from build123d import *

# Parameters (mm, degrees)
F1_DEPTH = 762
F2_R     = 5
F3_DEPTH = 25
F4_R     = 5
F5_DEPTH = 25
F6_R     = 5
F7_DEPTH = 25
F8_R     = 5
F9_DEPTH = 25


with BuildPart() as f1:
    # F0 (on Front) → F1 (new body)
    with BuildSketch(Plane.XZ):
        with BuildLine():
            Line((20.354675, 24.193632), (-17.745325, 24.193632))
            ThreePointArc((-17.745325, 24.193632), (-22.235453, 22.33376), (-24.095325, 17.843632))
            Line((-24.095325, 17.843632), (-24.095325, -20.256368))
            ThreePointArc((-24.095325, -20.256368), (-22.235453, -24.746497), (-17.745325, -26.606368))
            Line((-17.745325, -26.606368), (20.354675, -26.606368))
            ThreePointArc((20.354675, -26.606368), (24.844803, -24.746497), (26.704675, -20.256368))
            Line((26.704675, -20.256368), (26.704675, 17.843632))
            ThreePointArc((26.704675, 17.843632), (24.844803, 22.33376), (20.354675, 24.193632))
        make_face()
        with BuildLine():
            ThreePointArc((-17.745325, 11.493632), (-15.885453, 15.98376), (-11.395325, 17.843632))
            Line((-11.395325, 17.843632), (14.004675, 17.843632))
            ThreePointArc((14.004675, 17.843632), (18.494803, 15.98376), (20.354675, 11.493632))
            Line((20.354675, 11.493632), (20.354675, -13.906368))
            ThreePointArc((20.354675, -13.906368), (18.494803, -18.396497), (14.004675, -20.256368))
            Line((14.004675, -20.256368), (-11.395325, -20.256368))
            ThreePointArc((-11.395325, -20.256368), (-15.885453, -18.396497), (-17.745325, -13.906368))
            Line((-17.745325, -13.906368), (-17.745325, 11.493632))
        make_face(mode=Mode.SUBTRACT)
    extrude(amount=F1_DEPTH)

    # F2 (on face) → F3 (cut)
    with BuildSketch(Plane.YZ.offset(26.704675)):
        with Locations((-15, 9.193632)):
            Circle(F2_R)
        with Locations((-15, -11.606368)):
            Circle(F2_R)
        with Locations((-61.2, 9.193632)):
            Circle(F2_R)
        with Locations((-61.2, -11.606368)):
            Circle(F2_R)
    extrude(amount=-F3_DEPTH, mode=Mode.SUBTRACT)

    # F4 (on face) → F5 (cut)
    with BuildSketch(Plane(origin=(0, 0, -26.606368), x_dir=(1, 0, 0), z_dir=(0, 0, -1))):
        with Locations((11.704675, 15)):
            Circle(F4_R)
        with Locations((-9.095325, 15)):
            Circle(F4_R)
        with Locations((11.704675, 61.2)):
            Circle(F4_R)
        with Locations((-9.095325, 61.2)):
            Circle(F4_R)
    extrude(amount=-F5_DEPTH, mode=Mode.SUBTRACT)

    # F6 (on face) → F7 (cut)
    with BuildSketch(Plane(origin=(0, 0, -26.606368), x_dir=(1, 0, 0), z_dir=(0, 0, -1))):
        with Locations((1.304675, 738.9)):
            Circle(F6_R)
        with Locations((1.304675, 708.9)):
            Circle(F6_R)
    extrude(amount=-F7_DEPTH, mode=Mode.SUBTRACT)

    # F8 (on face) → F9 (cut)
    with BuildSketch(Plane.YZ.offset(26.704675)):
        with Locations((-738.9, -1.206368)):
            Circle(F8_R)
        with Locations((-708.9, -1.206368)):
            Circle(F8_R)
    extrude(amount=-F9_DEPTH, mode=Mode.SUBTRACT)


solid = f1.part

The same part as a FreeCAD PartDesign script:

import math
import FreeCAD as App
import Part
import Sketcher
Q = App.Units.Quantity

doc = App.newDocument("Part")
params = doc.addObject("Spreadsheet::Sheet", "Params")
for row, (alias, value) in enumerate([
    ("sketch1_width", "1 in"),
    ("sketch1_radius", "0.25 in"),
    ("pad1_length", "30 in"),
    ("pocket1_length", "25 mm"),
    ("pocket2_length", "25 mm"),
    ("pocket3_length", "25 mm"),
    ("pocket4_length", "25 mm"),
], start=1):
    params.set(f"A{row}", alias)
    params.set(f"B{row}", "=" + value)
    params.setAlias(f"B{row}", alias)

body = doc.addObject("PartDesign::Body", "Body")

# Sketch on XZ plane
sketch1 = body.newObject("Sketcher::SketchObject", "Sketch")
sketch1.AttachmentSupport = (doc.getObject("XZ_Plane"), [""])
sketch1.MapMode = "FlatFace"
sketch1.addGeometry([
    Part.LineSegment(App.Vector(20, 24, 0), App.Vector(-18, 24, 0)),  # 0
    Part.ArcOfCircle(Part.Circle(App.Vector(-18, 18, 0), App.Vector(0, 0, 1), 6), math.radians(90), math.radians(180)),  # 1
    Part.LineSegment(App.Vector(-24, 18, 0), App.Vector(-24, -20, 0)),  # 2
    Part.ArcOfCircle(Part.Circle(App.Vector(-18, -20, 0), App.Vector(0, 0, 1), 6), math.radians(180), math.radians(270)),  # 3
    Part.LineSegment(App.Vector(-18, -27, 0), App.Vector(20, -27, 0)),  # 4
    Part.ArcOfCircle(Part.Circle(App.Vector(20, -20, 0), App.Vector(0, 0, 1), 6), math.radians(-90), math.radians(0)),  # 5
    Part.LineSegment(App.Vector(27, -20, 0), App.Vector(27, 18, 0)),  # 6
    Part.ArcOfCircle(Part.Circle(App.Vector(20, 18, 0), App.Vector(0, 0, 1), 6), math.radians(0), math.radians(90)),  # 7
    Part.LineSegment(App.Vector(-18, -14, 0), App.Vector(-18, 11, 0)),  # 8
    Part.ArcOfCircle(Part.Circle(App.Vector(-11, 11, 0), App.Vector(0, 0, 1), 6), math.radians(90), math.radians(180)),  # 9
    Part.LineSegment(App.Vector(-11, 18, 0), App.Vector(14, 18, 0)),  # 10
    Part.ArcOfCircle(Part.Circle(App.Vector(14, 11, 0), App.Vector(0, 0, 1), 6), math.radians(0), math.radians(90)),  # 11
    Part.LineSegment(App.Vector(20, 11, 0), App.Vector(20, -14, 0)),  # 12
    Part.ArcOfCircle(Part.Circle(App.Vector(14, -14, 0), App.Vector(0, 0, 1), 6), math.radians(-90), math.radians(0)),  # 13
    Part.LineSegment(App.Vector(14, -20, 0), App.Vector(-11, -20, 0)),  # 14
    Part.ArcOfCircle(Part.Circle(App.Vector(-11, -14, 0), App.Vector(0, 0, 1), 6), math.radians(180), math.radians(270)),  # 15
], False)
sketch1.addConstraint([
    Sketcher.Constraint("Tangent", 0, 2, 1, 1),
    Sketcher.Constraint("Tangent", 1, 2, 2, 1),
    Sketcher.Constraint("Tangent", 2, 2, 3, 1),
    Sketcher.Constraint("Tangent", 3, 2, 4, 1),
    Sketcher.Constraint("Tangent", 4, 2, 5, 1),
    Sketcher.Constraint("Tangent", 5, 2, 6, 1),
    Sketcher.Constraint("Tangent", 6, 2, 7, 1),
    Sketcher.Constraint("Tangent", 7, 2, 0, 1),
    Sketcher.Constraint("Tangent", 8, 2, 9, 2),
    Sketcher.Constraint("Tangent", 9, 1, 10, 1),
    Sketcher.Constraint("Tangent", 10, 2, 11, 2),
    Sketcher.Constraint("Tangent", 11, 1, 12, 1),
    Sketcher.Constraint("Tangent", 12, 2, 13, 2),
    Sketcher.Constraint("Tangent", 13, 1, 14, 1),
    Sketcher.Constraint("Tangent", 14, 2, 15, 2),
    Sketcher.Constraint("Tangent", 15, 1, 8, 1),
    Sketcher.Constraint("Horizontal", 0),
    Sketcher.Constraint("Vertical", 2),
    Sketcher.Constraint("Horizontal", 4),
    Sketcher.Constraint("Vertical", 6),
    Sketcher.Constraint("Vertical", 8),
    Sketcher.Constraint("Horizontal", 10),
    Sketcher.Constraint("Vertical", 12),
    Sketcher.Constraint("Horizontal", 14),
    Sketcher.Constraint("Equal", 1, 3),
    Sketcher.Constraint("Equal", 3, 5),
    Sketcher.Constraint("Equal", 5, 7),
    Sketcher.Constraint("Equal", 7, 9),
    Sketcher.Constraint("Equal", 9, 11),
    Sketcher.Constraint("Equal", 11, 13),
    Sketcher.Constraint("Equal", 13, 15),
    Sketcher.Constraint("Horizontal", 6, 2, 9, 1),
    Sketcher.Constraint("Horizontal", 5, 2, 13, 1),
    Sketcher.Constraint("Vertical", 3, 2, 8, 2),
    Sketcher.Constraint("Vertical", 7, 2, 11, 1),
    Sketcher.Constraint("Equal", 4, 2),
    Sketcher.Constraint("DistanceX", 10, 1, 10, 2, Q("1 in")),
    Sketcher.Constraint("Radius", 1, Q("0.25 in")),
    Sketcher.Constraint("DistanceY", -1, 1, 1, 3, 17.843632),
    Sketcher.Constraint("DistanceX", 1, 3, -1, 1, 17.745325),
])
sketch1.setExpression("Constraints[36]", "Params.sketch1_width")
sketch1.setExpression("Constraints[37]", "Params.sketch1_radius")
pad1 = body.newObject("PartDesign::Pad", "Pad")
pad1.Profile = sketch1
pad1.setExpression("Length", "Params.pad1_length")

# Sketch on YZ plane
sketch2 = body.newObject("Sketcher::SketchObject", "Sketch001")
sketch2.AttachmentSupport = (doc.getObject("YZ_Plane"), [""])
sketch2.MapMode = "FlatFace"
sketch2.AttachmentOffset = App.Placement(App.Vector(0, 0, 26.704675), App.Rotation())
sketch2.addGeometry([
    Part.Circle(App.Vector(-15, 9, 0), App.Vector(0, 0, 1), 5),
    Part.Circle(App.Vector(-15, -12, 0), App.Vector(0, 0, 1), 5),
    Part.Circle(App.Vector(-61, 9, 0), App.Vector(0, 0, 1), 5),
    Part.Circle(App.Vector(-61, -12, 0), App.Vector(0, 0, 1), 5),
], False)
sketch2.addConstraint([
    Sketcher.Constraint("Equal", 0, 1),
    Sketcher.Constraint("Equal", 1, 2),
    Sketcher.Constraint("Equal", 2, 3),
    Sketcher.Constraint("Horizontal", 0, 3, 2, 3),
    Sketcher.Constraint("Horizontal", 1, 3, 3, 3),
    Sketcher.Constraint("Vertical", 0, 3, 1, 3),
    Sketcher.Constraint("Vertical", 2, 3, 3, 3),
    Sketcher.Constraint("Diameter", 0, 10.0),
    Sketcher.Constraint("DistanceX", 0, 3, -1, 1, 15.0),
    Sketcher.Constraint("DistanceX", 2, 3, -1, 1, 61.2),
    Sketcher.Constraint("DistanceY", 1, 3, 0, 3, 20.8),
    Sketcher.Constraint("DistanceY", -1, 1, 0, 3, 9.193632),
])
pocket1 = body.newObject("PartDesign::Pocket", "Pocket")
pocket1.Profile = sketch2
pocket1.setExpression("Length", "Params.pocket1_length")

# Sketch on XY plane
sketch3 = body.newObject("Sketcher::SketchObject", "Sketch002")
sketch3.AttachmentSupport = (doc.getObject("XY_Plane"), [""])
sketch3.MapMode = "FlatFace"
sketch3.AttachmentOffset = App.Placement(App.Vector(0, 0, -26.606368), App.Rotation())
sketch3.addGeometry([
    Part.Circle(App.Vector(12, -15, 0), App.Vector(0, 0, 1), 5),
    Part.Circle(App.Vector(-9, -15, 0), App.Vector(0, 0, 1), 5),
    Part.Circle(App.Vector(12, -61, 0), App.Vector(0, 0, 1), 5),
    Part.Circle(App.Vector(-9, -61, 0), App.Vector(0, 0, 1), 5),
], False)
sketch3.addConstraint([
    Sketcher.Constraint("Equal", 0, 1),
    Sketcher.Constraint("Equal", 1, 2),
    Sketcher.Constraint("Equal", 2, 3),
    Sketcher.Constraint("Horizontal", 0, 3, 1, 3),
    Sketcher.Constraint("Horizontal", 2, 3, 3, 3),
    Sketcher.Constraint("Vertical", 0, 3, 2, 3),
    Sketcher.Constraint("Vertical", 1, 3, 3, 3),
    Sketcher.Constraint("Diameter", 0, 10.0),
    Sketcher.Constraint("DistanceY", 0, 3, -1, 1, 15.0),
    Sketcher.Constraint("DistanceY", 2, 3, -1, 1, 61.2),
    Sketcher.Constraint("DistanceX", 1, 3, 0, 3, 20.8),
    Sketcher.Constraint("DistanceX", -1, 1, 0, 3, 11.704675),
])
pocket2 = body.newObject("PartDesign::Pocket", "Pocket001")
pocket2.Profile = sketch3
pocket2.setExpression("Length", "Params.pocket2_length")
pocket2.Reversed = True

# Sketch on XY plane
sketch4 = body.newObject("Sketcher::SketchObject", "Sketch003")
sketch4.AttachmentSupport = (doc.getObject("XY_Plane"), [""])
sketch4.MapMode = "FlatFace"
sketch4.AttachmentOffset = App.Placement(App.Vector(0, 0, -26.606368), App.Rotation())
sketch4.addGeometry([
    Part.Circle(App.Vector(1, -739, 0), App.Vector(0, 0, 1), 5),
    Part.Circle(App.Vector(1, -709, 0), App.Vector(0, 0, 1), 5),
], False)
sketch4.addConstraint([
    Sketcher.Constraint("Equal", 0, 1),
    Sketcher.Constraint("Vertical", 0, 3, 1, 3),
    Sketcher.Constraint("Diameter", 0, 10.0),
    Sketcher.Constraint("DistanceY", 0, 3, -1, 1, 738.9),
    Sketcher.Constraint("DistanceY", 1, 3, -1, 1, 708.9),
    Sketcher.Constraint("DistanceX", -1, 1, 0, 3, 1.304675),
])
pocket3 = body.newObject("PartDesign::Pocket", "Pocket002")
pocket3.Profile = sketch4
pocket3.setExpression("Length", "Params.pocket3_length")
pocket3.Reversed = True

# Sketch on YZ plane
sketch5 = body.newObject("Sketcher::SketchObject", "Sketch004")
sketch5.AttachmentSupport = (doc.getObject("YZ_Plane"), [""])
sketch5.MapMode = "FlatFace"
sketch5.AttachmentOffset = App.Placement(App.Vector(0, 0, 26.704675), App.Rotation())
sketch5.addGeometry([
    Part.Circle(App.Vector(-739, -1, 0), App.Vector(0, 0, 1), 5),
    Part.Circle(App.Vector(-709, -1, 0), App.Vector(0, 0, 1), 5),
], False)
sketch5.addConstraint([
    Sketcher.Constraint("Equal", 0, 1),
    Sketcher.Constraint("Horizontal", 0, 3, 1, 3),
    Sketcher.Constraint("Diameter", 0, 10.0),
    Sketcher.Constraint("DistanceX", 0, 3, -1, 1, 738.9),
    Sketcher.Constraint("DistanceX", 1, 3, -1, 1, 708.9),
    Sketcher.Constraint("DistanceY", 0, 3, -1, 1, 1.206368),
])
pocket4 = body.newObject("PartDesign::Pocket", "Pocket003")
pocket4.Profile = sketch5
pocket4.setExpression("Length", "Params.pocket4_length")

doc.recompute()
